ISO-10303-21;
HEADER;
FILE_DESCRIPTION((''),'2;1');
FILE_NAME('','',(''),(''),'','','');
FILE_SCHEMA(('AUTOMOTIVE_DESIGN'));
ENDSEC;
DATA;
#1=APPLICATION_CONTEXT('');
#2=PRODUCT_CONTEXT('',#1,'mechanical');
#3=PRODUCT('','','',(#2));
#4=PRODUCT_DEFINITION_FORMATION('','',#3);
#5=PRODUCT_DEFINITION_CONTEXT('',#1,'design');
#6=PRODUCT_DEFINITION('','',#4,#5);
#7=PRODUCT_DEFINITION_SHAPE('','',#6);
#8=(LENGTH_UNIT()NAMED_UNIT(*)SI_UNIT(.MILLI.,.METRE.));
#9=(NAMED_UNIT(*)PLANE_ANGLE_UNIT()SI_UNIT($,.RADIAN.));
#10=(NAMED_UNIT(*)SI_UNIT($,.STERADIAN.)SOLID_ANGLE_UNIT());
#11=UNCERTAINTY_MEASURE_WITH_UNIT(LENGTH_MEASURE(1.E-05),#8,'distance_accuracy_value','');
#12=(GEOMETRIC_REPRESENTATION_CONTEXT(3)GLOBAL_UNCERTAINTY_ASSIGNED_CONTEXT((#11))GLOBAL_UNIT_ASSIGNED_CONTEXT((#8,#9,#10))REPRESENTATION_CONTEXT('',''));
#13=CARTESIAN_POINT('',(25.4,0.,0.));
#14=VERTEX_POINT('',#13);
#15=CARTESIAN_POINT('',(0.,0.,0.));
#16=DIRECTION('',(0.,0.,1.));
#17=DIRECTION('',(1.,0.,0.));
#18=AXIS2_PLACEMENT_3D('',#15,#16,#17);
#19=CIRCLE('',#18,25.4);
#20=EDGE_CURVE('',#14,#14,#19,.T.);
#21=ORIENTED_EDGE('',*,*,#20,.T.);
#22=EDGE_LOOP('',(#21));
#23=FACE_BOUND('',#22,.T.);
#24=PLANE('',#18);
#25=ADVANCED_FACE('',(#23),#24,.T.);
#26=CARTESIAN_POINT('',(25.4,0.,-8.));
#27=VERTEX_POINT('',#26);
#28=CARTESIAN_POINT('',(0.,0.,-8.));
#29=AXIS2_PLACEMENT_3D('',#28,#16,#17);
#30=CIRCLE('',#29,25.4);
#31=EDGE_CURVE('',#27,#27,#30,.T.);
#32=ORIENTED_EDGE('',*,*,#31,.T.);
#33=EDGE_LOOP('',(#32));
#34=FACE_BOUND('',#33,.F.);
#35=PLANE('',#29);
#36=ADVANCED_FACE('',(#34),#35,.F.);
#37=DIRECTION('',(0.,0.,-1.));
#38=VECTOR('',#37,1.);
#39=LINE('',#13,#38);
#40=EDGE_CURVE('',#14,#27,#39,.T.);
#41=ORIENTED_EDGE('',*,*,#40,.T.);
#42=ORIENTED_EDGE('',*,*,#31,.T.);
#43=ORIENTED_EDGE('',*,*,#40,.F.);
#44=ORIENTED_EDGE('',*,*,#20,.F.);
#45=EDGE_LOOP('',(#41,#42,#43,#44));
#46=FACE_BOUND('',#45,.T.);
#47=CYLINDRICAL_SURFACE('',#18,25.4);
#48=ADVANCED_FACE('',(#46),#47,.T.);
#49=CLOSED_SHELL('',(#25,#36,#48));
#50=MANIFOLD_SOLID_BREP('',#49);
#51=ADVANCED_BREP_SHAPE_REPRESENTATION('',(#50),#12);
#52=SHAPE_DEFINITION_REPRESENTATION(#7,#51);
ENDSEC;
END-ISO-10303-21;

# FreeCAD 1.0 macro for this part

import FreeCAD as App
import Part
import Sketcher

V = App.Vector

doc = App.newDocument("Part")
params = doc.addObject("Spreadsheet::Sheet", "Params")
for row, (alias, value) in enumerate([
    ("sketch1_diameter", "50.8 mm"),
    ("pad1_length", "8 mm"),
], start=1):
    params.set(f"A{row}", alias)
    params.set(f"B{row}", "=" + value)
    params.setAlias(f"B{row}", alias)

body = doc.addObject("PartDesign::Body", "Body")

# Sketch on XY plane
sketch1 = body.newObject("Sketcher::SketchObject", "Sketch")
sketch1.AttachmentSupport = (doc.getObject("XY_Plane"), [""])
sketch1.MapMode = "FlatFace"
sketch1.addGeometry(Part.Circle(V(0, 0, 0), V(0, 0, 1), 25.4), False)
sketch1.addConstraint([
    Sketcher.Constraint("Coincident", 0, 3, -1, 1),
    Sketcher.Constraint("Diameter", 0, 50.8),
])
sketch1.setExpression("Constraints[1]", "Params.sketch1_diameter")
pad1 = body.newObject("PartDesign::Pad", "Pad")
pad1.Profile = sketch1
pad1.setExpression("Length", "Params.pad1_length")
pad1.Reversed = True

doc.recompute()
